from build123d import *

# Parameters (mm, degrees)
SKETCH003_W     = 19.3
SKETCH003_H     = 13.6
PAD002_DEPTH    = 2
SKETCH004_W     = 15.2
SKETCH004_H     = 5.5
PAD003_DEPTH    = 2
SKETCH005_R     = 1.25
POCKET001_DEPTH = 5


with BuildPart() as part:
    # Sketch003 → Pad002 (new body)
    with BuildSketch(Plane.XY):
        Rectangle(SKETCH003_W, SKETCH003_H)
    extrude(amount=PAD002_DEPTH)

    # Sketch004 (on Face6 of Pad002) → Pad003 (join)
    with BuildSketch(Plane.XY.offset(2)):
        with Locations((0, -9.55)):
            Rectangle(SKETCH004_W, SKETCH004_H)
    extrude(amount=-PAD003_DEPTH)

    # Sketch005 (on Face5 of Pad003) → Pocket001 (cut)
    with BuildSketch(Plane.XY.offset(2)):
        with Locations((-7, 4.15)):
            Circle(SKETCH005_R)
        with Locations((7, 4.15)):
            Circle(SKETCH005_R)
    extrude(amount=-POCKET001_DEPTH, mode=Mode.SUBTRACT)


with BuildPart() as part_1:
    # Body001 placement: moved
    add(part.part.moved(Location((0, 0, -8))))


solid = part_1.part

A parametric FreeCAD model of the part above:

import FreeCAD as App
import Part
import Sketcher

V = App.Vector
Q = App.Units.Quantity


def add_polygon(sketch, points):
    """Adds a closed chain of lines whose ends are joined by coincident constraints."""
    first, n = sketch.GeometryCount, len(points)
    for a, b in zip(points, points[1:] + points[:1]):
        sketch.addGeometry(Part.LineSegment(App.Vector(*a, 0), App.Vector(*b, 0)), False)
    for i in range(n):
        sketch.addConstraint(Sketcher.Constraint("Coincident", first + i, 2, first + (i + 1) % n, 1))

doc = App.newDocument("Part")
params = doc.addObject("Spreadsheet::Sheet", "Params")
for row, (alias, value) in enumerate([
    ("sketch1_width", "19.3 mm"),
    ("sketch1_height", "13.6 mm"),
    ("pad1_length", "2 mm"),
    ("sketch2_width", "15.2 mm"),
    ("sketch2_height", "5.5 mm"),
    ("pad2_length", "2 mm"),
    ("sketch3_diameter", "2.5 mm"),
    ("pocket1_length", "5 mm"),
], start=1):
    params.set(f"A{row}", alias)
    params.set(f"B{row}", "=" + value)
    params.setAlias(f"B{row}", alias)

body = doc.addObject("PartDesign::Body", "Body")

# Sketch on XY plane
sketch1 = body.newObject("Sketcher::SketchObject", "Sketch")
sketch1.AttachmentSupport = (doc.getObject("XY_Plane"), [""])
sketch1.MapMode = "FlatFace"
add_polygon(sketch1, [(-10, 7), (-10, -7), (10, -7), (10, 7)])  # lines 0-3
sketch1.addConstraint(Sketcher.Constraint("Vertical", 0))
sketch1.addConstraint(Sketcher.Constraint("Horizontal", 1))
sketch1.addConstraint(Sketcher.Constraint("Vertical", 2))
sketch1.addConstraint(Sketcher.Constraint("Horizontal", 3))
sketch1.addConstraint(Sketcher.Constraint("Symmetric", 0, 2, 2, 2, -1, 1))
sketch1.addConstraint(Sketcher.Constraint("DistanceX", 1, 1, 1, 2, Q("19.3 mm")))
sketch1.addConstraint(Sketcher.Constraint("DistanceY", 0, 2, 0, 1, Q("13.6 mm")))
sketch1.setExpression("Constraints[9]", "Params.sketch1_width")
sketch1.setExpression("Constraints[10]", "Params.sketch1_height")
pad1 = body.newObject("PartDesign::Pad", "Pad")
pad1.Profile = sketch1
pad1.setExpression("Length", "Params.pad1_length")

# Sketch on XY plane
sketch2 = body.newObject("Sketcher::SketchObject", "Sketch001")
sketch2.AttachmentSupport = (doc.getObject("XY_Plane"), [""])
sketch2.MapMode = "FlatFace"
sketch2.AttachmentOffset = App.Placement(V(0, 0, 2), App.Rotation())
add_polygon(sketch2, [(-8, -7), (-8, -12), (8, -12), (8, -7)])  # lines 0-3
sketch2.addConstraint(Sketcher.Constraint("Vertical", 0))
sketch2.addConstraint(Sketcher.Constraint("Horizontal", 1))
sketch2.addConstraint(Sketcher.Constraint("Vertical", 2))
sketch2.addConstraint(Sketcher.Constraint("Horizontal", 3))
sketch2.addConstraint(Sketcher.Constraint("DistanceX", 1, 1, 1, 2, Q("15.2 mm")))
sketch2.addConstraint(Sketcher.Constraint("DistanceY", 0, 2, 0, 1, Q("5.5 mm")))
sketch2.addConstraint(Sketcher.Constraint("DistanceX", 0, 2, -1, 1, Q("7.6 mm")))
sketch2.addConstraint(Sketcher.Constraint("DistanceY", 0, 2, -1, 1, Q("12.3 mm")))
sketch2.setExpression("Constraints[8]", "Params.sketch2_width")
sketch2.setExpression("Constraints[9]", "Params.sketch2_height")
pad2 = body.newObject("PartDesign::Pad", "Pad001")
pad2.Profile = sketch2
pad2.setExpression("Length", "Params.pad2_length")
pad2.Reversed = True

# Sketch on XY plane
sketch3 = body.newObject("Sketcher::SketchObject", "Sketch002")
sketch3.AttachmentSupport = (doc.getObject("XY_Plane"), [""])
sketch3.MapMode = "FlatFace"
sketch3.AttachmentOffset = App.Placement(V(0, 0, 2), App.Rotation())
sketch3.addGeometry(Part.Circle(V(-7, 4.2, 0), V(0, 0, 1), 1.2), False)
sketch3.addGeometry(Part.Circle(V(7, 4.2, 0), V(0, 0, 1), 1.2), False)
sketch3.addConstraint(Sketcher.Constraint("Equal", 0, 1))
sketch3.addConstraint(Sketcher.Constraint("Symmetric", 0, 3, 1, 3, -2))
sketch3.addConstraint(Sketcher.Constraint("Diameter", 0, Q("2.5 mm")))
sketch3.addConstraint(Sketcher.Constraint("DistanceX", 0, 3, -1, 1, Q("7 mm")))
sketch3.addConstraint(Sketcher.Constraint("DistanceY", -1, 1, 0, 3, Q("4.15 mm")))
sketch3.setExpression("Constraints[2]", "Params.sketch3_diameter")
pocket1 = body.newObject("PartDesign::Pocket", "Pocket")
pocket1.Profile = sketch3
pocket1.setExpression("Length", "Params.pocket1_length")
body2 = doc.addObject("PartDesign::Body", "Body001")
doc.recompute()

body.Placement = App.Placement(V(0, 0, -8), App.Rotation(V(0, 0, 1), 0))
boolean = body2.newObject("PartDesign::Boolean", "Boolean")
boolean.Type = "Fuse"
boolean.addObjects([body])

doc.recompute()
